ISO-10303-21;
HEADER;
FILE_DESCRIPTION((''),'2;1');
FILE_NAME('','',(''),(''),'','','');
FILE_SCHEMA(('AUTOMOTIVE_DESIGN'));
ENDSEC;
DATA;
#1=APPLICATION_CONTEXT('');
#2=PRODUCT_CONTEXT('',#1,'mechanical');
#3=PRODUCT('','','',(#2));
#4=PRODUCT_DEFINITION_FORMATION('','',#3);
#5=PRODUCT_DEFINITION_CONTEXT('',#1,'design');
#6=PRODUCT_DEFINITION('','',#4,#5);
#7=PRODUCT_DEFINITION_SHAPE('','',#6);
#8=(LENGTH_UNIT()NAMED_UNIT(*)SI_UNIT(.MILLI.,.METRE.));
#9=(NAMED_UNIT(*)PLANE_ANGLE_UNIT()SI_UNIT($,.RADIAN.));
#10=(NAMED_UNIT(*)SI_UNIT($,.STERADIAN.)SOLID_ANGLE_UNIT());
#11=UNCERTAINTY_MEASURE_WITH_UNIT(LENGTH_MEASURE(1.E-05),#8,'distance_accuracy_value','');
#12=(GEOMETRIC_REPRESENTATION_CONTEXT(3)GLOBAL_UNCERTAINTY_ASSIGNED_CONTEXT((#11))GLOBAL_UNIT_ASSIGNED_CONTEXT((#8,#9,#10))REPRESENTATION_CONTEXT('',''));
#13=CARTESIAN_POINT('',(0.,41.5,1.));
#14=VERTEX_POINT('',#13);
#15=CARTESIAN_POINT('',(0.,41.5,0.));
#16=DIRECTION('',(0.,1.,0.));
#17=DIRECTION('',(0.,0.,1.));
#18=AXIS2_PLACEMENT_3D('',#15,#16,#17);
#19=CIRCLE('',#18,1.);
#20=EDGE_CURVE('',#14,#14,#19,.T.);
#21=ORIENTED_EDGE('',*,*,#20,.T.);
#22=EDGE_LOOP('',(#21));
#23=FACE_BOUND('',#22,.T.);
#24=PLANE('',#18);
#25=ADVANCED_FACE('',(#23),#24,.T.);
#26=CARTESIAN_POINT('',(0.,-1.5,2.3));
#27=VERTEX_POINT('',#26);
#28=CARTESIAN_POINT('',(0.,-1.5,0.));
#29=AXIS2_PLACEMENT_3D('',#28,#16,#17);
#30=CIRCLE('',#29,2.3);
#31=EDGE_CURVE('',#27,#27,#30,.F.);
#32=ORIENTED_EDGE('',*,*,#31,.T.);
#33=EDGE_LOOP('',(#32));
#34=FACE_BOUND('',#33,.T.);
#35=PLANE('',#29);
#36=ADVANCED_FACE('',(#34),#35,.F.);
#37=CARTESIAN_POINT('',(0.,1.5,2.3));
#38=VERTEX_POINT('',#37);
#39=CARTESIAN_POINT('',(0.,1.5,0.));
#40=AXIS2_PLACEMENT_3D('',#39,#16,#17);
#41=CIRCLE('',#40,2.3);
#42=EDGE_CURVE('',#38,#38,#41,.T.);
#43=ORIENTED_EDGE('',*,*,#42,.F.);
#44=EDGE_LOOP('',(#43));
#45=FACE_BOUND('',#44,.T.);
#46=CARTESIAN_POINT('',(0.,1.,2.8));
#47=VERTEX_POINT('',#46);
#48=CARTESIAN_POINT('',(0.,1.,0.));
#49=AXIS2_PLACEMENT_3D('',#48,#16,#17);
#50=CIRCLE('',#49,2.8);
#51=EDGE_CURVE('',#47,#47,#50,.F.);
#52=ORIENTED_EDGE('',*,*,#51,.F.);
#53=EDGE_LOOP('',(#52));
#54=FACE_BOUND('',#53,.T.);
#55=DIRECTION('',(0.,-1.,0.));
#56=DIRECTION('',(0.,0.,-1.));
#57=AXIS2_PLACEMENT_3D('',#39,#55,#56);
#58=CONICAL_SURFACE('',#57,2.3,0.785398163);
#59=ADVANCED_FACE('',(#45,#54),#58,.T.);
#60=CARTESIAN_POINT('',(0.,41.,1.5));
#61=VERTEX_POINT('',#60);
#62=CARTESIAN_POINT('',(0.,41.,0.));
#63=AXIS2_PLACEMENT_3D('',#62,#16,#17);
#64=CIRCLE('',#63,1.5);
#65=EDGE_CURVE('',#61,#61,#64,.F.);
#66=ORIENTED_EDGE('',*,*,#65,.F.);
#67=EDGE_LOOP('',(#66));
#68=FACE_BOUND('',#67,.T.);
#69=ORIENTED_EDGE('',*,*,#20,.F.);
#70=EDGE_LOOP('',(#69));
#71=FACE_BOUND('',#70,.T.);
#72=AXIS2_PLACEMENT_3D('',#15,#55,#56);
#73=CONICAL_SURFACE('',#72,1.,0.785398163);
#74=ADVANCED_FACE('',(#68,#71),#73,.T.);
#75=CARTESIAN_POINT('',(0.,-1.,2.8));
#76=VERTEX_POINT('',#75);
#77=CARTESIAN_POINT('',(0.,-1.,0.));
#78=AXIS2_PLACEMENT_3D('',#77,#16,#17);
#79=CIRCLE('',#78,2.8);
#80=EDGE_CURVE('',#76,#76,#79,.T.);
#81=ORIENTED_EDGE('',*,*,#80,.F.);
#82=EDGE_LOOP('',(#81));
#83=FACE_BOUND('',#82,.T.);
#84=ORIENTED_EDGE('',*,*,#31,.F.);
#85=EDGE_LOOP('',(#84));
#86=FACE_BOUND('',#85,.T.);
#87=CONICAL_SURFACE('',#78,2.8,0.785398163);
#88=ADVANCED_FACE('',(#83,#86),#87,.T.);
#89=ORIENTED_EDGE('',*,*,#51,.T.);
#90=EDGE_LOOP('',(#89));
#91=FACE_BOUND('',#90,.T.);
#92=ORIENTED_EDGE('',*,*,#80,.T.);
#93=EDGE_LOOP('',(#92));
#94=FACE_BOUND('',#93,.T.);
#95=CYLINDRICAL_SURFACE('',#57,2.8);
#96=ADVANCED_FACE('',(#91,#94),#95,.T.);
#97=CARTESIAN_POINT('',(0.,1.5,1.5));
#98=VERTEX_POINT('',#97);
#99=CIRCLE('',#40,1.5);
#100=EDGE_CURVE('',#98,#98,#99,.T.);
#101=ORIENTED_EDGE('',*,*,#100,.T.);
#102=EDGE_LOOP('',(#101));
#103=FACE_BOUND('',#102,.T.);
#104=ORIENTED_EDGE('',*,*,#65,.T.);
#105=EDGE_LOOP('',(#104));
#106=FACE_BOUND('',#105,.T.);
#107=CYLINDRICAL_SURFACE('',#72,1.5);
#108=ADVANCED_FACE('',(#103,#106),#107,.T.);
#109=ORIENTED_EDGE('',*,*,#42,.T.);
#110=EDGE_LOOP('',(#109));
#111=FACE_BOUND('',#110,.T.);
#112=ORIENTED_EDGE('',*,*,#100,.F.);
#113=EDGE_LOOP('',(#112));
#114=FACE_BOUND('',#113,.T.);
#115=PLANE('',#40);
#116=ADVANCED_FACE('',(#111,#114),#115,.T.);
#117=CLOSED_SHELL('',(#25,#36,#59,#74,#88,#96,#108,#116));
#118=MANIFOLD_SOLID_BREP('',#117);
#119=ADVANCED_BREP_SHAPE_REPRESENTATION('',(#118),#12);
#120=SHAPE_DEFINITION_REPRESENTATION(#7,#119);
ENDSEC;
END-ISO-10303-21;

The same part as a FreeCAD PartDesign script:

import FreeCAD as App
import Part
import Sketcher


def edges_at(feature, points):
    """Names of the edges that pass closest to the given points."""
    edges = feature.Shape.Edges
    near = lambda p: min(range(len(edges)), key=lambda i: edges[i].distToShape(Part.Vertex(*p))[0])
    return sorted({f"Edge{near(p) + 1}" for p in points})

doc = App.newDocument("Part")
body = doc.addObject("PartDesign::Body", "Body")

# Sketch on XZ plane
sketch1 = doc.addObject("Sketcher::SketchObject", "Sketch")
body.addObject(sketch1)
sketch1.AttachmentSupport = (doc.XZ_Plane, [""])
sketch1.MapMode = "FlatFace"
sketch1.addGeometry(Part.Circle(App.Vector(0, 0, 0), App.Vector(0, 0, 1), 2.8), False)
sketch1.addConstraint(Sketcher.Constraint("Coincident", 0, 3, -1, 1))
sketch1.addConstraint(Sketcher.Constraint("Diameter", 0, 5.6))
pad1 = doc.addObject("PartDesign::Pad", "Pad")
body.addObject(pad1)
pad1.Profile = sketch1
pad1.Length = 3
pad1.Midplane = True

# Sketch on XZ plane
sketch2 = doc.addObject("Sketcher::SketchObject", "Sketch001")
body.addObject(sketch2)
sketch2.AttachmentSupport = (doc.XZ_Plane, [""])
sketch2.MapMode = "FlatFace"
sketch2.AttachmentOffset = App.Placement(App.Vector(0, 0, -1.5), App.Rotation())
sketch2.addGeometry(Part.Circle(App.Vector(0, 0, 0), App.Vector(0, 0, 1), 1.5), False)
sketch2.addConstraint(Sketcher.Constraint("Coincident", 0, 3, -1, 1))
sketch2.addConstraint(Sketcher.Constraint("Diameter", 0, 3.0))
pad2 = doc.addObject("PartDesign::Pad", "Pad001")
body.addObject(pad2)
pad2.Profile = sketch2
pad2.Length = 40
pad2.Reversed = True
doc.recompute()

chamfer = doc.addObject("PartDesign::Chamfer", "Chamfer")
body.addObject(chamfer)
chamfer.Base = (pad2, edges_at(pad2, [(-1.5, 41.5, 0)]))
chamfer.Size = 0.5
doc.recompute()

chamfer2 = doc.addObject("PartDesign::Chamfer", "Chamfer001")
body.addObject(chamfer2)
chamfer2.Base = (chamfer, edges_at(chamfer, [(-2.8, -1.5, 0), (-2.8, 1.5, 0)]))
chamfer2.Size = 0.5

doc.recompute()
